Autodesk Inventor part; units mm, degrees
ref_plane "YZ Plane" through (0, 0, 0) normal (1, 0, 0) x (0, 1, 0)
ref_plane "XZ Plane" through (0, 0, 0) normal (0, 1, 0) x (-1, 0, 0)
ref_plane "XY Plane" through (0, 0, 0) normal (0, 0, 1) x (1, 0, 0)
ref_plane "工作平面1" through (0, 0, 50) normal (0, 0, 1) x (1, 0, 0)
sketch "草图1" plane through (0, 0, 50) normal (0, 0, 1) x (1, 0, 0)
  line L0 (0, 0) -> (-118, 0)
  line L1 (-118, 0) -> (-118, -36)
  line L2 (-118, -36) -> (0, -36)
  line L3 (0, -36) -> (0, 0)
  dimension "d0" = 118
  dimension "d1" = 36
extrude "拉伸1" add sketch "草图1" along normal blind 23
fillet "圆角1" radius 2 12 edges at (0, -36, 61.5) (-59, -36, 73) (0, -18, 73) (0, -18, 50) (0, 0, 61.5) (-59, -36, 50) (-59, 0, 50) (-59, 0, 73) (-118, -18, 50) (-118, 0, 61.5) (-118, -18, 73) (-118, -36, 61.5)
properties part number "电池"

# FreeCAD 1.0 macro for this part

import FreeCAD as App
import Part
import Sketcher

V = App.Vector
Q = App.Units.Quantity

doc = App.newDocument("Part")
body = doc.addObject("PartDesign::Body", "Body")

# Sketch on XY plane
sketch1 = body.newObject("Sketcher::SketchObject", "Sketch")
sketch1.AttachmentSupport = (doc.getObject("XY_Plane"), [""])
sketch1.MapMode = "FlatFace"
sketch1.AttachmentOffset = App.Placement(V(0, 0, 50), App.Rotation())
sketch1.addGeometry(Part.LineSegment(V(0, -36, 0), V(0, 0, 0)), False)
sketch1.addGeometry(Part.LineSegment(V(0, 0, 0), V(-118, 0, 0)), False)
sketch1.addGeometry(Part.LineSegment(V(-118, 0, 0), V(-118, -36, 0)), False)
sketch1.addGeometry(Part.LineSegment(V(-118, -36, 0), V(0, -36, 0)), False)
sketch1.addConstraint(Sketcher.Constraint("Coincident", 0, 2, 1, 1))
sketch1.addConstraint(Sketcher.Constraint("Coincident", 1, 2, 2, 1))
sketch1.addConstraint(Sketcher.Constraint("Coincident", 2, 2, 3, 1))
sketch1.addConstraint(Sketcher.Constraint("Coincident", 3, 2, 0, 1))
sketch1.addConstraint(Sketcher.Constraint("Vertical", 0))
sketch1.addConstraint(Sketcher.Constraint("Horizontal", 1))
sketch1.addConstraint(Sketcher.Constraint("Vertical", 2))
sketch1.addConstraint(Sketcher.Constraint("Horizontal", 3))
sketch1.addConstraint(Sketcher.Constraint("Coincident", 0, 2, -1, 1))
sketch1.addConstraint(Sketcher.Constraint("DistanceX", 1, 2, 1, 1, Q("118 mm")))
sketch1.addConstraint(Sketcher.Constraint("DistanceY", 0, 1, 0, 2, Q("36 mm")))
pad1 = body.newObject("PartDesign::Pad", "Pad")
pad1.Profile = sketch1
pad1.Length = 23
doc.recompute()

fillet = body.newObject("PartDesign::Fillet", "Fillet")
fillet.Base = (pad1, ["Edge1"])
fillet.UseAllEdges = True
fillet.Radius = 2

doc.recompute()
